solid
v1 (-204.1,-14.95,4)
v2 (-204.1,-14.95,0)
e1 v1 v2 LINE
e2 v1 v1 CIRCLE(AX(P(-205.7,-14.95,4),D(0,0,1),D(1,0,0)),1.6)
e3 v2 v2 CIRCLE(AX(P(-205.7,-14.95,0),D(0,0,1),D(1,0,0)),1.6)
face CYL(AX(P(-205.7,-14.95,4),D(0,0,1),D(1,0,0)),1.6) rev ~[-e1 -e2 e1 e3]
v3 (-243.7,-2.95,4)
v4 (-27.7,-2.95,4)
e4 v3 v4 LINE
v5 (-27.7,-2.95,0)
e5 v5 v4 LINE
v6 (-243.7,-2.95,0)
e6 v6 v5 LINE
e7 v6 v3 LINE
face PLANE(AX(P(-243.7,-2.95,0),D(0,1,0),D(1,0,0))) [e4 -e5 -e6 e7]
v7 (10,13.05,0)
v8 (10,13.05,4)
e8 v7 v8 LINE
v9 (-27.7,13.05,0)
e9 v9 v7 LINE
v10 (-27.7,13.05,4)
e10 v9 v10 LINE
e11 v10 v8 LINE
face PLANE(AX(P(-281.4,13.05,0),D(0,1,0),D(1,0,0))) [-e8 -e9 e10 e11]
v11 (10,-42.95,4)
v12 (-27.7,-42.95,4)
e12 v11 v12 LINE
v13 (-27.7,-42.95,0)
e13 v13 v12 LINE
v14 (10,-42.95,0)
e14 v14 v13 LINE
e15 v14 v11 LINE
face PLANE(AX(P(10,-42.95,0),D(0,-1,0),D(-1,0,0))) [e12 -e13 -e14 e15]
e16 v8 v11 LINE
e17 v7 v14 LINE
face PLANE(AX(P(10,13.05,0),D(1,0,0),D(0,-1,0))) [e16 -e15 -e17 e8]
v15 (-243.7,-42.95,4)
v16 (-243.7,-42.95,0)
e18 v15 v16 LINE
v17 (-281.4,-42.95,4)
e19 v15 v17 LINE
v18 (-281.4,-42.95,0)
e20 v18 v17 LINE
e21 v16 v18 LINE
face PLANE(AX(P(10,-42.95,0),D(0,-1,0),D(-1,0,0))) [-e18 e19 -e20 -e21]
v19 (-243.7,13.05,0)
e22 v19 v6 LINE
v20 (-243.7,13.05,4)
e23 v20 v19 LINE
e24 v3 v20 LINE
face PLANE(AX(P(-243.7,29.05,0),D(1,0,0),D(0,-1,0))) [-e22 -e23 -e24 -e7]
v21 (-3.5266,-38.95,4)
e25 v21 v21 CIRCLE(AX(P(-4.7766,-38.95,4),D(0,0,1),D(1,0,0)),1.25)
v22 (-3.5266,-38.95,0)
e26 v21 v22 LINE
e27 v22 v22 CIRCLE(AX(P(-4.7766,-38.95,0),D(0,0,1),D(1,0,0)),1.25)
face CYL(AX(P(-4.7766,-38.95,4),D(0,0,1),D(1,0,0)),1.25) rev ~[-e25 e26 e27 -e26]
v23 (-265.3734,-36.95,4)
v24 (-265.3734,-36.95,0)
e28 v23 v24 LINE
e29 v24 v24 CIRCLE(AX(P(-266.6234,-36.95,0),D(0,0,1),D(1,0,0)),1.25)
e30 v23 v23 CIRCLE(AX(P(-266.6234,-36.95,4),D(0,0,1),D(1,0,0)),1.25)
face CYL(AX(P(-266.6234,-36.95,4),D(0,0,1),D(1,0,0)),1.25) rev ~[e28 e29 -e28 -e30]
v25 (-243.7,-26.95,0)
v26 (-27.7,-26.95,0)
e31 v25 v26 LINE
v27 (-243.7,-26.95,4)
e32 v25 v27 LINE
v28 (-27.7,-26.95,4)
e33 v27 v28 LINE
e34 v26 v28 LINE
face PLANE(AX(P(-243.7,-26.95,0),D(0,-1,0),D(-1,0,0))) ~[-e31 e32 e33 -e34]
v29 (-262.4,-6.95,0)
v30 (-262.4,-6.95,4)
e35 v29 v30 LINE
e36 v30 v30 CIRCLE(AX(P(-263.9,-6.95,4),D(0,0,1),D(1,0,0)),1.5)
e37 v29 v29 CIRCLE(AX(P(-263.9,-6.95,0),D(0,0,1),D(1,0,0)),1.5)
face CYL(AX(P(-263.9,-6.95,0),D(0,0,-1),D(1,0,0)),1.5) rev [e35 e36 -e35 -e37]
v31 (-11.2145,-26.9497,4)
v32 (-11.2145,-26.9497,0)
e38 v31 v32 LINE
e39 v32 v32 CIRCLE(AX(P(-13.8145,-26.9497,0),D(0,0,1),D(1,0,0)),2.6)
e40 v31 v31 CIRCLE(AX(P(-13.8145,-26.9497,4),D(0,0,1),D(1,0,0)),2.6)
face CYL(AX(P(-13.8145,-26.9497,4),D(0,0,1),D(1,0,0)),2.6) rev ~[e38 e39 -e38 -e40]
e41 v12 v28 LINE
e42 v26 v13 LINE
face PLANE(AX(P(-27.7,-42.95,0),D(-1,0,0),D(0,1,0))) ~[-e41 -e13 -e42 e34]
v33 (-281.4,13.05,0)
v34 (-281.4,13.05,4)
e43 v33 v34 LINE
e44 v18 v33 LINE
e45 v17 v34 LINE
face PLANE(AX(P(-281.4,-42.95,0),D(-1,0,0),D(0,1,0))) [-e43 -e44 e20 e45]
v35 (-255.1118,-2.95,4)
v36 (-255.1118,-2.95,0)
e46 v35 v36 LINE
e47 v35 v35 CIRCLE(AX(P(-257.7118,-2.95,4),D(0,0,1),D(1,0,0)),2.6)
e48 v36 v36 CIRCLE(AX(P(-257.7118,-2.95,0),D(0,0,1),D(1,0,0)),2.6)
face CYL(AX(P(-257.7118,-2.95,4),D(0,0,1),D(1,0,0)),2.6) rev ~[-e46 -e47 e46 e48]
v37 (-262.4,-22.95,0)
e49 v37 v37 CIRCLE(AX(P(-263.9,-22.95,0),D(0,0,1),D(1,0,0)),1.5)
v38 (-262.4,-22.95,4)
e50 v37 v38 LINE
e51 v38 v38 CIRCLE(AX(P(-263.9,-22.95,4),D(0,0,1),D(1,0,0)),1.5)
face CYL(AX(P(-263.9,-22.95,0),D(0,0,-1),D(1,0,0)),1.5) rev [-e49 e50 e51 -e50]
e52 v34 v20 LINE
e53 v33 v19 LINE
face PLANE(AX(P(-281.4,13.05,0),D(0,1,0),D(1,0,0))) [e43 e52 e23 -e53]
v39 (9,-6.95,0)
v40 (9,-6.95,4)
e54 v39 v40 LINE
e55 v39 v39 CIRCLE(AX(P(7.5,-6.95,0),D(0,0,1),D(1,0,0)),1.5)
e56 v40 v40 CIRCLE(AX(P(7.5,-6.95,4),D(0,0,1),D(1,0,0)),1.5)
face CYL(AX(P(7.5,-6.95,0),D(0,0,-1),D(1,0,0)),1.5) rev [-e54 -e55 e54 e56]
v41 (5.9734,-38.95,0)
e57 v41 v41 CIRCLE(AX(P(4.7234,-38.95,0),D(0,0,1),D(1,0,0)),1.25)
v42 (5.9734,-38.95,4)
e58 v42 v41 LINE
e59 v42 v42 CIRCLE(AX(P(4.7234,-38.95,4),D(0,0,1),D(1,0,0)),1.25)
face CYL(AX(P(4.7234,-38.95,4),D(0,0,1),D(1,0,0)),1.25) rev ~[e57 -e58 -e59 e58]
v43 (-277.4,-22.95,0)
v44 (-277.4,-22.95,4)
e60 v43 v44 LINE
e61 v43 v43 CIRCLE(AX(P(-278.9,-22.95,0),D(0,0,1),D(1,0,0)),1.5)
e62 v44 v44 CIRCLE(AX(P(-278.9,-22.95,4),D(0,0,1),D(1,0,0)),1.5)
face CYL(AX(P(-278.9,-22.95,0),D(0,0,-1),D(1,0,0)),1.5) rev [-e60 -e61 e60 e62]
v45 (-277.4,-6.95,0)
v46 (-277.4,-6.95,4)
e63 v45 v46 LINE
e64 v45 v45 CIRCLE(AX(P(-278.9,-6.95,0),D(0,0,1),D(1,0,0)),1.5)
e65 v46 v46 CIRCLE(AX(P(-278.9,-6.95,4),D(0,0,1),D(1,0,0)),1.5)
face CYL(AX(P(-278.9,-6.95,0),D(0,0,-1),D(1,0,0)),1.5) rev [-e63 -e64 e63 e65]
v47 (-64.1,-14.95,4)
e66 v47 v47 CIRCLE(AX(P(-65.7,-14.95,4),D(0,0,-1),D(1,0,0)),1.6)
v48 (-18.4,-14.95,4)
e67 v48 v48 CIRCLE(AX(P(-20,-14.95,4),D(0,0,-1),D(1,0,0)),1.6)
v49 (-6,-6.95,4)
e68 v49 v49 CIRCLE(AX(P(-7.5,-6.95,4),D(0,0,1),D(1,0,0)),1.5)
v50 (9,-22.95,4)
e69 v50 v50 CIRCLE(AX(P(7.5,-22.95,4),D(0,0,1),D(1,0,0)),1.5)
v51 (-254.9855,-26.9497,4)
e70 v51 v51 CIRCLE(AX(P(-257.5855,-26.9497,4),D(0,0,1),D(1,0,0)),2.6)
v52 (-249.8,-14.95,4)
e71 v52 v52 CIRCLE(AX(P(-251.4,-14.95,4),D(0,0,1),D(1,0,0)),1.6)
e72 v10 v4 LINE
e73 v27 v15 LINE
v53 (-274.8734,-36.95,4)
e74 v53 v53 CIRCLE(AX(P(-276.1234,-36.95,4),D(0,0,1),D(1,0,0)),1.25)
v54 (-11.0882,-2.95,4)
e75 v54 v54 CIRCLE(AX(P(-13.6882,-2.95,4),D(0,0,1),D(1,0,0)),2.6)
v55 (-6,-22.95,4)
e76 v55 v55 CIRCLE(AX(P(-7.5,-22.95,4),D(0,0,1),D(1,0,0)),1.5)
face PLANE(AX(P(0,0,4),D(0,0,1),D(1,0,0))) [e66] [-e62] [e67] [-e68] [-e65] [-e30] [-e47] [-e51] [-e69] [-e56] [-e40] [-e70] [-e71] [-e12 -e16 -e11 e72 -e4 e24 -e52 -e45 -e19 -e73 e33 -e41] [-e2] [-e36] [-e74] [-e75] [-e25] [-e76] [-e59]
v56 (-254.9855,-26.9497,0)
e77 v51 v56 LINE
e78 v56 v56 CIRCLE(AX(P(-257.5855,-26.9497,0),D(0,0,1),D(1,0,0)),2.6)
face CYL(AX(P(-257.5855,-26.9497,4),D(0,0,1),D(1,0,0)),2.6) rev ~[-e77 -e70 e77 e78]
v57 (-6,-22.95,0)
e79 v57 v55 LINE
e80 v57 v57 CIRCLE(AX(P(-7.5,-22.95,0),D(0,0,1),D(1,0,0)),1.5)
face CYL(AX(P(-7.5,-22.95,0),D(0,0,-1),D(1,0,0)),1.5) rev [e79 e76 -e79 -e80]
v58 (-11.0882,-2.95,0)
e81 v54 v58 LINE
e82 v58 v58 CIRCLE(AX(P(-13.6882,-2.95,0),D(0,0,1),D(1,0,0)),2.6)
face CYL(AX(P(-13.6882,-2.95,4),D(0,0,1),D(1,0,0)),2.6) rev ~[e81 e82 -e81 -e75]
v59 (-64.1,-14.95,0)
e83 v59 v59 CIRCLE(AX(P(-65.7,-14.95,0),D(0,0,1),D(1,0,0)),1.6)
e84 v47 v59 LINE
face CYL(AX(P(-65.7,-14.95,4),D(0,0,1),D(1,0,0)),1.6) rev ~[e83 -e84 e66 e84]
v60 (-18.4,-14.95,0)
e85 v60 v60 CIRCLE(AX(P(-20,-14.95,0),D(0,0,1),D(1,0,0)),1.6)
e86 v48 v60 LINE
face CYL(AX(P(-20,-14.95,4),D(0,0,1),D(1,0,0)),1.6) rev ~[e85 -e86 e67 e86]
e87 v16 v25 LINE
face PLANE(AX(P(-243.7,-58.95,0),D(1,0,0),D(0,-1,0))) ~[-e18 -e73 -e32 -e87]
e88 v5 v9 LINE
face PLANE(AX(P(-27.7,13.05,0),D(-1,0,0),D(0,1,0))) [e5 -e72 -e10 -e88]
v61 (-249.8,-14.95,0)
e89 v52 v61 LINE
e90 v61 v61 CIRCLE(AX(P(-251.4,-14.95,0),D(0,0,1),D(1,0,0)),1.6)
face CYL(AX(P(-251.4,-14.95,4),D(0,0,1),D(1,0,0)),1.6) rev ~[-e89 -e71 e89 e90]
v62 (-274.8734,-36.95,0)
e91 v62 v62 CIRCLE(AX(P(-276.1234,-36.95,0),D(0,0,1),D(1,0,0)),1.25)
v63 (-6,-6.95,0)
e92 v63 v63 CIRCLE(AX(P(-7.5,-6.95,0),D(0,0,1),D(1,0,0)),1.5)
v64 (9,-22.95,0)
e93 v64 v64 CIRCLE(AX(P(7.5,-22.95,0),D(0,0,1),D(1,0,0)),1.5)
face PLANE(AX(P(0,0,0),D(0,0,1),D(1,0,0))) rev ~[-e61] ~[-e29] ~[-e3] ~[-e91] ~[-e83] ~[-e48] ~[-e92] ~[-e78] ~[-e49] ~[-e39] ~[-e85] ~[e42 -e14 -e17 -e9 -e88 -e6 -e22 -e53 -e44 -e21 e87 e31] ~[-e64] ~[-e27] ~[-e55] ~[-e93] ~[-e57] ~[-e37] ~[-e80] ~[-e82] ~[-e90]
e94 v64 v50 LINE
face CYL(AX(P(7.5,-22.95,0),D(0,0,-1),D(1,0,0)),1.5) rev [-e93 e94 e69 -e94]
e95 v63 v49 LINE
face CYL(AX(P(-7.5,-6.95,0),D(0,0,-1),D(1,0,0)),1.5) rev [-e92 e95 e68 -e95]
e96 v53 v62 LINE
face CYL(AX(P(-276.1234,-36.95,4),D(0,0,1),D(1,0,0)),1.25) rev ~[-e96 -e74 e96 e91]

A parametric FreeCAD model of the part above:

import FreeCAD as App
import Part
import Sketcher

V = App.Vector


def add_polygon(sketch, points):
    """Adds a closed chain of lines whose ends are joined by coincident constraints."""
    first, n = sketch.GeometryCount, len(points)
    for a, b in zip(points, points[1:] + points[:1]):
        sketch.addGeometry(Part.LineSegment(App.Vector(*a, 0), App.Vector(*b, 0)), False)
    for i in range(n):
        sketch.addConstraint(Sketcher.Constraint("Coincident", first + i, 2, first + (i + 1) % n, 1))

doc = App.newDocument("Part")
body = doc.addObject("PartDesign::Body", "Body")

sketch1 = doc.addObject("Sketcher::SketchObject", "Sketch")
body.addObject(sketch1)
sketch1.AttachmentSupport = (doc.XY_Plane, [""])
sketch1.MapMode = "FlatFace"
add_polygon(sketch1, [(10, 13.1), (-281.4, 13.1), (-281.4, -43), (10, -43)])
sketch1.addGeometry(Part.Circle(V(-278.9, -22.9, 0), V(0, 0, 1), 1.5), False)
sketch1.addGeometry(Part.Circle(V(-263.9, -22.9, 0), V(0, 0, 1), 1.5), False)
sketch1.addGeometry(Part.Circle(V(-7.5, -22.9, 0), V(0, 0, 1), 1.5), False)
sketch1.addGeometry(Part.Circle(V(7.5, -22.9, 0), V(0, 0, 1), 1.5), False)
sketch1.addGeometry(Part.Circle(V(-278.9, -7, 0), V(0, 0, 1), 1.5), False)
sketch1.addGeometry(Part.Circle(V(-263.9, -7, 0), V(0, 0, 1), 1.5), False)
sketch1.addGeometry(Part.Circle(V(-7.5, -7, 0), V(0, 0, 1), 1.5), False)
sketch1.addGeometry(Part.Circle(V(7.5, -7, 0), V(0, 0, 1), 1.5), False)
sketch1.addConstraint(Sketcher.Constraint("Horizontal", 0))
sketch1.addConstraint(Sketcher.Constraint("Vertical", 1))
sketch1.addConstraint(Sketcher.Constraint("Horizontal", 2))
sketch1.addConstraint(Sketcher.Constraint("Vertical", 3))
sketch1.addConstraint(Sketcher.Constraint("Equal", 4, 5))
sketch1.addConstraint(Sketcher.Constraint("Equal", 5, 6))
sketch1.addConstraint(Sketcher.Constraint("Equal", 6, 7))
sketch1.addConstraint(Sketcher.Constraint("Equal", 7, 8))
sketch1.addConstraint(Sketcher.Constraint("Equal", 8, 9))
sketch1.addConstraint(Sketcher.Constraint("Equal", 9, 10))
sketch1.addConstraint(Sketcher.Constraint("Equal", 10, 11))
sketch1.addConstraint(Sketcher.Constraint("Symmetric", 6, 3, 7, 3, -2))
sketch1.addConstraint(Sketcher.Constraint("Symmetric", 10, 3, 11, 3, -2))
sketch1.addConstraint(Sketcher.Constraint("Horizontal", 4, 3, 5, 3))
sketch1.addConstraint(Sketcher.Constraint("Horizontal", 5, 3, 6, 3))
sketch1.addConstraint(Sketcher.Constraint("Horizontal", 8, 3, 9, 3))
sketch1.addConstraint(Sketcher.Constraint("Horizontal", 9, 3, 10, 3))
sketch1.addConstraint(Sketcher.Constraint("Vertical", 4, 3, 8, 3))
sketch1.addConstraint(Sketcher.Constraint("Vertical", 5, 3, 9, 3))
sketch1.addConstraint(Sketcher.Constraint("Vertical", 6, 3, 10, 3))
sketch1.addConstraint(Sketcher.Constraint("Diameter", 4, 3.0))
sketch1.addConstraint(Sketcher.Constraint("DistanceX", 0, 2, 0, 1, 291.4))
sketch1.addConstraint(Sketcher.Constraint("DistanceY", 8, 3, 0, 2, 20.0))
sketch1.addConstraint(Sketcher.Constraint("DistanceY", 1, 2, 4, 3, 20.0))
sketch1.addConstraint(Sketcher.Constraint("DistanceX", 0, 2, 8, 3, 2.5))
sketch1.addConstraint(Sketcher.Constraint("DistanceX", 7, 3, 2, 2, 2.5))
sketch1.addConstraint(Sketcher.Constraint("DistanceY", 1, 2, 1, 1, 56.0))
sketch1.addConstraint(Sketcher.Constraint("DistanceX", -1, 1, 2, 2, 10.0))
sketch1.addConstraint(Sketcher.Constraint("DistanceX", 4, 3, 5, 3, 15.0))
sketch1.addConstraint(Sketcher.Constraint("DistanceY", 4, 3, -1, 1, 22.95))
pad1 = doc.addObject("PartDesign::Pad", "Pad")
body.addObject(pad1)
pad1.Profile = sketch1
pad1.Length = 4

sketch2 = doc.addObject("Sketcher::SketchObject", "Sketch001")
body.addObject(sketch2)
sketch2.AttachmentSupport = (doc.XY_Plane, [""])
sketch2.MapMode = "FlatFace"
sketch2.AttachmentOffset = App.Placement(V(0, 0, 4), App.Rotation())
sketch2.addGeometry(Part.Circle(V(-257.7, -3, 0), V(0, 0, 1), 2.6), False)
sketch2.addGeometry(Part.Circle(V(-257.6, -26.9, 0), V(0, 0, 1), 2.6), False)
sketch2.addGeometry(Part.Circle(V(-13.7, -3, 0), V(0, 0, 1), 2.6), False)
sketch2.addGeometry(Part.Circle(V(-13.8, -26.9, 0), V(0, 0, 1), 2.6), False)
sketch2.addConstraint(Sketcher.Constraint("Equal", 0, 1))
sketch2.addConstraint(Sketcher.Constraint("Equal", 1, 2))
sketch2.addConstraint(Sketcher.Constraint("Equal", 2, 3))
sketch2.addConstraint(Sketcher.Constraint("Horizontal", 0, 3, 2, 3))
sketch2.addConstraint(Sketcher.Constraint("Horizontal", 1, 3, 3, 3))
sketch2.addConstraint(Sketcher.Constraint("Diameter", 0, 5.2))
sketch2.addConstraint(Sketcher.Constraint("DistanceY", 0, 3, -1, 1, 2.95))
sketch2.addConstraint(Sketcher.Constraint("DistanceX", 1, 3, 3, 3, 243.771))
sketch2.addConstraint(Sketcher.Constraint("DistanceX", 0, 3, -1, 1, 257.7118))
sketch2.addConstraint(Sketcher.Constraint("DistanceX", 1, 3, -1, 1, 257.5855))
sketch2.addConstraint(Sketcher.Constraint("DistanceY", 1, 3, -1, 1, 26.9497))
sketch2.addConstraint(Sketcher.Constraint("DistanceX", 2, 3, -1, 1, 13.6882))
pocket1 = doc.addObject("PartDesign::Pocket", "Pocket")
body.addObject(pocket1)
pocket1.Profile = sketch2
pocket1.Length = 4

sketch3 = doc.addObject("Sketcher::SketchObject", "Sketch002")
body.addObject(sketch3)
sketch3.AttachmentSupport = (doc.XY_Plane, [""])
sketch3.MapMode = "FlatFace"
add_polygon(sketch3, [(-244, 29), (-28, 29), (-28, -3), (-244, -3)])
sketch3.addConstraint(Sketcher.Constraint("Horizontal", 0))
sketch3.addConstraint(Sketcher.Constraint("Vertical", 1))
sketch3.addConstraint(Sketcher.Constraint("Horizontal", 2))
sketch3.addConstraint(Sketcher.Constraint("Vertical", 3))
sketch3.addConstraint(Sketcher.Constraint("DistanceX", 0, 1, 0, 2, 216.0))
sketch3.addConstraint(Sketcher.Constraint("DistanceY", 1, 2, 1, 1, 32.0))
sketch3.addConstraint(Sketcher.Constraint("DistanceX", 0, 2, -1, 1, 27.7))
sketch3.addConstraint(Sketcher.Constraint("DistanceY", -1, 1, 0, 2, 29.05))
pocket2 = doc.addObject("PartDesign::Pocket", "Pocket001")
body.addObject(pocket2)
pocket2.Profile = sketch3
pocket2.Length = 4
pocket2.Reversed = True
doc.recompute()

datumplane = doc.addObject("PartDesign::Plane", "DatumPlane")
body.addObject(datumplane)
datumplane.AttachmentSupport = (doc.XZ_Plane, [""])
datumplane.MapMode = "FlatFace"
datumplane.AttachmentOffset = App.Placement(V(0, 0, 14.95), App.Rotation())
mirrored = doc.addObject("PartDesign::Mirrored", "Mirrored")
body.addObject(mirrored)
mirrored.Originals = [pocket2]
mirrored.MirrorPlane = (datumplane, [""])
body.Tip = mirrored

sketch4 = doc.addObject("Sketcher::SketchObject", "Sketch003")
body.addObject(sketch4)
sketch4.AttachmentSupport = (doc.XY_Plane, [""])
sketch4.MapMode = "FlatFace"
sketch4.AttachmentOffset = App.Placement(V(0, 0, 4), App.Rotation())
sketch4.addGeometry(Part.Circle(V(4.7, -39, 0), V(0, 0, 1), 1.2), False)
sketch4.addGeometry(Part.Circle(V(-4.8, -39, 0), V(0, 0, 1), 1.2), False)
sketch4.addGeometry(Part.Circle(V(-276.1, -37, 0), V(0, 0, 1), 1.2), False)
sketch4.addGeometry(Part.Circle(V(-266.6, -37, 0), V(0, 0, 1), 1.2), False)
sketch4.addConstraint(Sketcher.Constraint("Equal", 0, 1))
sketch4.addConstraint(Sketcher.Constraint("Equal", 1, 2))
sketch4.addConstraint(Sketcher.Constraint("Equal", 2, 3))
sketch4.addConstraint(Sketcher.Constraint("Horizontal", 0, 3, 1, 3))
sketch4.addConstraint(Sketcher.Constraint("Horizontal", 2, 3, 3, 3))
sketch4.addConstraint(Sketcher.Constraint("Diameter", 0, 2.5))
sketch4.addConstraint(Sketcher.Constraint("DistanceX", 1, 3, 0, 3, 9.5))
sketch4.addConstraint(Sketcher.Constraint("DistanceX", 2, 3, 3, 3, 9.5))
sketch4.addConstraint(Sketcher.Constraint("DistanceY", 1, 3, 2, 3, 2.0))
sketch4.addConstraint(Sketcher.Constraint("DistanceY", 0, 3, -1, 1, 38.95))
sketch4.addConstraint(Sketcher.Constraint("DistanceX", -1, 1, 0, 3, 4.7234))
sketch4.addConstraint(Sketcher.Constraint("DistanceX", 2, 3, -1, 1, 276.1234))
pocket3 = doc.addObject("PartDesign::Pocket", "Pocket002")
body.addObject(pocket3)
pocket3.Profile = sketch4
pocket3.Length = 10

sketch5 = doc.addObject("Sketcher::SketchObject", "Sketch004")
body.addObject(sketch5)
sketch5.AttachmentSupport = (doc.XY_Plane, [""])
sketch5.MapMode = "FlatFace"
sketch5.AttachmentOffset = App.Placement(V(0, 0, 4), App.Rotation())
sketch5.addGeometry(Part.Circle(V(-20, -14.9, 0), V(0, 0, 1), 1.6), False)
sketch5.addGeometry(Part.Circle(V(-65.7, -14.9, 0), V(0, 0, 1), 1.6), False)
sketch5.addGeometry(Part.Circle(V(-251.4, -14.9, 0), V(0, 0, 1), 1.6), False)
sketch5.addGeometry(Part.Circle(V(-205.7, -14.9, 0), V(0, 0, 1), 1.6), False)
sketch5.addConstraint(Sketcher.Constraint("Equal", 0, 1))
sketch5.addConstraint(Sketcher.Constraint("Equal", 1, 2))
sketch5.addConstraint(Sketcher.Constraint("Equal", 2, 3))
sketch5.addConstraint(Sketcher.Constraint("Horizontal", 0, 3, 1, 3))
sketch5.addConstraint(Sketcher.Constraint("Horizontal", 1, 3, 2, 3))
sketch5.addConstraint(Sketcher.Constraint("Horizontal", 2, 3, 3, 3))
sketch5.addConstraint(Sketcher.Constraint("Diameter", 0, 3.2))
sketch5.addConstraint(Sketcher.Constraint("DistanceX", 1, 3, 0, 3, 45.7))
sketch5.addConstraint(Sketcher.Constraint("DistanceX", 2, 3, 3, 3, 45.7))
sketch5.addConstraint(Sketcher.Constraint("DistanceX", 0, 3, -1, 1, 20.0))
sketch5.addConstraint(Sketcher.Constraint("DistanceX", 3, 3, 1, 3, 140.0))
sketch5.addConstraint(Sketcher.Constraint("DistanceY", 0, 3, -1, 1, 14.95))
pocket4 = doc.addObject("PartDesign::Pocket", "Pocket003")
body.addObject(pocket4)
pocket4.Profile = sketch5
pocket4.Length = 10

doc.recompute()
